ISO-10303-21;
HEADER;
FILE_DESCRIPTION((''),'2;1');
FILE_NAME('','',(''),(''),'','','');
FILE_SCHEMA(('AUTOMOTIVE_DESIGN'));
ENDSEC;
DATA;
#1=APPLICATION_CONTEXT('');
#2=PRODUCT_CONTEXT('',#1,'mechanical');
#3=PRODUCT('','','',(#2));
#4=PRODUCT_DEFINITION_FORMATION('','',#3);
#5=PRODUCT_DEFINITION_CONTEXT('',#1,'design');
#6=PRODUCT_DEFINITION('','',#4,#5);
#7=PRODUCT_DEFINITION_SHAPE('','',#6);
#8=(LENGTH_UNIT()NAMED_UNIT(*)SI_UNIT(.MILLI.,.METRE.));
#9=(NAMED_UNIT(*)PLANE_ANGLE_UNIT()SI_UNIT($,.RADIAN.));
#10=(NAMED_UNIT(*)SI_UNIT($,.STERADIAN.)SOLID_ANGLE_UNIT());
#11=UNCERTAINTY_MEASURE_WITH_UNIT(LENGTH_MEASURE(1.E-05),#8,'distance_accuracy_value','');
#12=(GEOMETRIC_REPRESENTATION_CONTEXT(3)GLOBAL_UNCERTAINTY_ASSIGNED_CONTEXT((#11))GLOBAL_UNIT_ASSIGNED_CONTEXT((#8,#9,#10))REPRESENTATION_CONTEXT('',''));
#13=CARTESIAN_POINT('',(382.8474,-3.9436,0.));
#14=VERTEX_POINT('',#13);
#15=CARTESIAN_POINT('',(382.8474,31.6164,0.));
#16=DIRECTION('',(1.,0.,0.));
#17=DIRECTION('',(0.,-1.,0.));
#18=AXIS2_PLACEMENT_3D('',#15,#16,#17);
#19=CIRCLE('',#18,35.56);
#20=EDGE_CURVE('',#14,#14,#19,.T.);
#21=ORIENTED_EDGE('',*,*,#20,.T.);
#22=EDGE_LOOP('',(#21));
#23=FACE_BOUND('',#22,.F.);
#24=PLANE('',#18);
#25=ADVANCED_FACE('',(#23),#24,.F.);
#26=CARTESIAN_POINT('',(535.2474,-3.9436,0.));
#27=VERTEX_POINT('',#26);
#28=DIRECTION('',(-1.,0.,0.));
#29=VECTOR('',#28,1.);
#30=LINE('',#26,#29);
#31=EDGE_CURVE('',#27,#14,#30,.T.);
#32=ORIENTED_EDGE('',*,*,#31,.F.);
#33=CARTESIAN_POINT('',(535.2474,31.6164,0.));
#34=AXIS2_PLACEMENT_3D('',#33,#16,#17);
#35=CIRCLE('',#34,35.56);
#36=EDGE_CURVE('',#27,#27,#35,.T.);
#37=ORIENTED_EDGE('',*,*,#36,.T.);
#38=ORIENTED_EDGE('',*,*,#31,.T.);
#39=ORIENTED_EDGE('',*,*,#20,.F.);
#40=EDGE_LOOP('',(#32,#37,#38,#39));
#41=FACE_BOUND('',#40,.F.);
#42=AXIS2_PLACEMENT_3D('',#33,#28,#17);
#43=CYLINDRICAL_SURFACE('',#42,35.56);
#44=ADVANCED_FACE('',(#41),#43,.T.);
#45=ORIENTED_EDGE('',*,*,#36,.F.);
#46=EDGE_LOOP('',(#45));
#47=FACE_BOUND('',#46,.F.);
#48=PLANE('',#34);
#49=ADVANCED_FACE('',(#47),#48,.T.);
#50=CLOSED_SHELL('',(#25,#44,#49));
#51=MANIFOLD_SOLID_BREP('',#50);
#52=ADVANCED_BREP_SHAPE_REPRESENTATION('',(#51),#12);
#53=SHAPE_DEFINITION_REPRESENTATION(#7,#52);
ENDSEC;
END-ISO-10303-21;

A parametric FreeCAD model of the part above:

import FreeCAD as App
import Part
import Sketcher

V = App.Vector
Q = App.Units.Quantity


def add_polygon(sketch, points):
    """Adds a closed chain of lines whose ends are joined by coincident constraints."""
    first, n = sketch.GeometryCount, len(points)
    for a, b in zip(points, points[1:] + points[:1]):
        sketch.addGeometry(Part.LineSegment(App.Vector(*a, 0), App.Vector(*b, 0)), False)
    for i in range(n):
        sketch.addConstraint(Sketcher.Constraint("Coincident", first + i, 2, first + (i + 1) % n, 1))

doc = App.newDocument("Part")
params = doc.addObject("Spreadsheet::Sheet", "Params")
for row, (alias, value) in enumerate([
    ("sketch1_width", "6 in"),
    ("sketch1_height", "1.4 in"),
    ("revolution_angle", "360 deg"),
], start=1):
    params.set(f"A{row}", alias)
    params.set(f"B{row}", "=" + value)
    params.setAlias(f"B{row}", alias)

body = doc.addObject("PartDesign::Body", "Body")

# Sketch on XY plane
sketch1 = body.newObject("Sketcher::SketchObject", "Sketch")
sketch1.AttachmentSupport = (doc.getObject("XY_Plane"), [""])
sketch1.MapMode = "FlatFace"
add_polygon(sketch1, [(535, 32), (383, 32), (383, -4), (535, -4)])  # lines 0-3
sketch1.addGeometry(Part.LineSegment(V(383, 32, 0), V(535, 32, 0)), True)  # axis
sketch1.addConstraint([
    Sketcher.Constraint("Horizontal", 0),
    Sketcher.Constraint("Vertical", 1),
    Sketcher.Constraint("Horizontal", 2),
    Sketcher.Constraint("Vertical", 3),
    Sketcher.Constraint("Horizontal", 4),
    Sketcher.Constraint("Coincident", 4, 1, 0, 2),
    Sketcher.Constraint("Vertical", 2, 2, 4, 2),
    Sketcher.Constraint("DistanceX", 0, 2, 0, 1, Q("6 in")),
    Sketcher.Constraint("DistanceY", 1, 2, 1, 1, Q("1.4 in")),
    Sketcher.Constraint("DistanceX", -1, 1, 0, 2, Q("382.8474 mm")),
    Sketcher.Constraint("DistanceY", -1, 1, 0, 2, Q("31.6164 mm")),
])
sketch1.setExpression("Constraints[11]", "Params.sketch1_width")
sketch1.setExpression("Constraints[12]", "Params.sketch1_height")
revolution = body.newObject("PartDesign::Revolution", "Revolution")
revolution.Profile = sketch1
revolution.ReferenceAxis = (sketch1, ["Axis0"])
revolution.setExpression("Angle", "Params.revolution_angle")

doc.recompute()
